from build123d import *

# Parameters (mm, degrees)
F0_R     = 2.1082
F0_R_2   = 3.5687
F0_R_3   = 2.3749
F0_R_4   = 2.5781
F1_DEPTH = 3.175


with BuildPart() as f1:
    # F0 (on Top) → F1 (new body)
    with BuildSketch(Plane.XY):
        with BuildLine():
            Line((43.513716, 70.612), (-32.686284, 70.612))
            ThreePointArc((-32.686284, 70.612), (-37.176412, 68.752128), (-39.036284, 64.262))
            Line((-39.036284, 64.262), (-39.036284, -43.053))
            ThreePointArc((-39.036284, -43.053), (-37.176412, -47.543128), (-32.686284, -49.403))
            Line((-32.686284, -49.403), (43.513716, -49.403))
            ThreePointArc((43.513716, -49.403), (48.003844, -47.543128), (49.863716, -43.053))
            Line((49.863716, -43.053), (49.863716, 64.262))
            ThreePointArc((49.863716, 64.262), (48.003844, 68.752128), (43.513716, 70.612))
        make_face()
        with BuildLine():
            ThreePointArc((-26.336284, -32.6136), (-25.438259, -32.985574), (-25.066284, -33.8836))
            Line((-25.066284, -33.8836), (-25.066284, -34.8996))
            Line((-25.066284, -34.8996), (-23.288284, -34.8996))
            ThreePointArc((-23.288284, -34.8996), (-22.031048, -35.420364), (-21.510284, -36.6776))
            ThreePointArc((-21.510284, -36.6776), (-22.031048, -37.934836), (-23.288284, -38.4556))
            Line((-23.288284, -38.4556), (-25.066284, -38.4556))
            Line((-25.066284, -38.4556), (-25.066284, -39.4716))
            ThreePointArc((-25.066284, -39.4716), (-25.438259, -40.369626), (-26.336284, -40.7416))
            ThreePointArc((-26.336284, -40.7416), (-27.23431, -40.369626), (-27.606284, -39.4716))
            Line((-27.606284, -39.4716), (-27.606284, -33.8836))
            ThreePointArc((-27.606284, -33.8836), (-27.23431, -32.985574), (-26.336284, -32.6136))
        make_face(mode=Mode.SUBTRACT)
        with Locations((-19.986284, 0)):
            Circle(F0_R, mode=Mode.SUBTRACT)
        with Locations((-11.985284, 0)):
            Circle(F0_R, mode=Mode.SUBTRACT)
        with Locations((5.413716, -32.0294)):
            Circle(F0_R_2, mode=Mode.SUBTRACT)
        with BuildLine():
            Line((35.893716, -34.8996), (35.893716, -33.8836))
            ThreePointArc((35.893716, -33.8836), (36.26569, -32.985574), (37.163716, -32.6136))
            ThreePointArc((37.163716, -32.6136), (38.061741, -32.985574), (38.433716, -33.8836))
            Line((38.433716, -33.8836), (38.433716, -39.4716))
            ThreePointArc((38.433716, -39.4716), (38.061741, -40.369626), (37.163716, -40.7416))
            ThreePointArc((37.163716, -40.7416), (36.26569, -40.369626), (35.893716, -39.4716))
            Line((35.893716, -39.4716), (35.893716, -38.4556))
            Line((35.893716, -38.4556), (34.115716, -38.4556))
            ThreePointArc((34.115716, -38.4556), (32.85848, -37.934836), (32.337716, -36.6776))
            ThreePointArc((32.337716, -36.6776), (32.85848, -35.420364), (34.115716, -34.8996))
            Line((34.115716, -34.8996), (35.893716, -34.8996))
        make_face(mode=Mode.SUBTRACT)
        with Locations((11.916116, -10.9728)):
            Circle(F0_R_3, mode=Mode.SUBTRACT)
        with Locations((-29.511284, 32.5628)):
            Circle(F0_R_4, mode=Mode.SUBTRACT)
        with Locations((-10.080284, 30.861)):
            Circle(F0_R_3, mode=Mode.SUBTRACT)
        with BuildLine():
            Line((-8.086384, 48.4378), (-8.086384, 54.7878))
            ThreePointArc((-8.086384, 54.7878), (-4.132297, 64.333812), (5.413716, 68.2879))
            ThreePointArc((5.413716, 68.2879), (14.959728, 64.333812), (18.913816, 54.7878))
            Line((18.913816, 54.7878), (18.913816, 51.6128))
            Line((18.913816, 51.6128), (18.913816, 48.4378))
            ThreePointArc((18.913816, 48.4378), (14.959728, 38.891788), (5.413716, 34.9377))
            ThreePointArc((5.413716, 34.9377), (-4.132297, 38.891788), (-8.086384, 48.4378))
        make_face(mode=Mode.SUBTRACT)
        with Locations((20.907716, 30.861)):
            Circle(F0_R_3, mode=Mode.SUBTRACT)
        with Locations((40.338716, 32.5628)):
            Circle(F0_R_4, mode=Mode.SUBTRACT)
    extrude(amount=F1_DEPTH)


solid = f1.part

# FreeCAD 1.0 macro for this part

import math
import FreeCAD as App
import Part
import Sketcher
from FreeCAD import Vector
Q = App.Units.Quantity

doc = App.newDocument("Part")
body = doc.addObject("PartDesign::Body", "Body")

# Sketch on XY plane
sketch1 = body.newObject("Sketcher::SketchObject", "Sketch")
sketch1.AttachmentSupport = (doc.getObject("XY_Plane"), [""])
sketch1.MapMode = "FlatFace"
sketch1.addGeometry([
    Part.LineSegment(Vector(43.5, 70.6, 0), Vector(-32.7, 70.6, 0)),  # 0
    Part.ArcOfCircle(Part.Circle(Vector(-32.7, 64.3, 0), Vector(0, 0, 1), 6.4), math.radians(90), math.radians(180)),  # 1
    Part.LineSegment(Vector(-39, 64.3, 0), Vector(-39, -43.1, 0)),  # 2
    Part.ArcOfCircle(Part.Circle(Vector(-32.7, -43.1, 0), Vector(0, 0, 1), 6.4), math.radians(-180), math.radians(-90)),  # 3
    Part.LineSegment(Vector(-32.7, -49.4, 0), Vector(43.5, -49.4, 0)),  # 4
    Part.ArcOfCircle(Part.Circle(Vector(43.5, -43.1, 0), Vector(0, 0, 1), 6.4), math.radians(-90), math.radians(0)),  # 5
    Part.LineSegment(Vector(49.9, -43.1, 0), Vector(49.9, 64.3, 0)),  # 6
    Part.ArcOfCircle(Part.Circle(Vector(43.5, 64.3, 0), Vector(0, 0, 1), 6.4), math.radians(0), math.radians(90)),  # 7
    Part.ArcOfCircle(Part.Circle(Vector(-26.3, -33.9, 0), Vector(0, 0, 1), 1.3), math.radians(90), math.radians(180)),  # 8
    Part.ArcOfCircle(Part.Circle(Vector(-26.3, -33.9, 0), Vector(0, 0, 1), 1.3), math.radians(0), math.radians(90)),  # 9
    Part.LineSegment(Vector(-25.1, -33.9, 0), Vector(-25.1, -34.9, 0)),  # 10
    Part.LineSegment(Vector(-25.1, -34.9, 0), Vector(-23.3, -34.9, 0)),  # 11
    Part.ArcOfCircle(Part.Circle(Vector(-23.3, -36.7, 0), Vector(0, 0, 1), 1.8), math.radians(0), math.radians(90)),  # 12
    Part.ArcOfCircle(Part.Circle(Vector(-23.3, -36.7, 0), Vector(0, 0, 1), 1.8), math.radians(-90), math.radians(0)),  # 13
    Part.LineSegment(Vector(-23.3, -38.5, 0), Vector(-25.1, -38.5, 0)),  # 14
    Part.LineSegment(Vector(-25.1, -38.5, 0), Vector(-25.1, -39.5, 0)),  # 15
    Part.ArcOfCircle(Part.Circle(Vector(-26.3, -39.5, 0), Vector(0, 0, 1), 1.3), math.radians(-90), math.radians(0)),  # 16
    Part.ArcOfCircle(Part.Circle(Vector(-26.3, -39.5, 0), Vector(0, 0, 1), 1.3), math.radians(180), math.radians(270)),  # 17
    Part.LineSegment(Vector(-27.6, -39.5, 0), Vector(-27.6, -33.9, 0)),  # 18
    Part.Circle(Vector(-20, 0, 0), Vector(0, 0, 1), 2.1),  # 19
    Part.Circle(Vector(-12, 0, 0), Vector(0, 0, 1), 2.1),  # 20
    Part.Circle(Vector(5.4, -32, 0), Vector(0, 0, 1), 3.6),  # 21
    Part.LineSegment(Vector(34.1, -34.9, 0), Vector(35.9, -34.9, 0)),  # 22
    Part.LineSegment(Vector(35.9, -34.9, 0), Vector(35.9, -33.9, 0)),  # 23
    Part.ArcOfCircle(Part.Circle(Vector(37.2, -33.9, 0), Vector(0, 0, 1), 1.3), math.radians(90), math.radians(180)),  # 24
    Part.ArcOfCircle(Part.Circle(Vector(37.2, -33.9, 0), Vector(0, 0, 1), 1.3), math.radians(0), math.radians(90)),  # 25
    Part.LineSegment(Vector(38.4, -33.9, 0), Vector(38.4, -39.5, 0)),  # 26
    Part.ArcOfCircle(Part.Circle(Vector(37.2, -39.5, 0), Vector(0, 0, 1), 1.3), math.radians(-90), math.radians(0)),  # 27
    Part.ArcOfCircle(Part.Circle(Vector(37.2, -39.5, 0), Vector(0, 0, 1), 1.3), math.radians(180), math.radians(270)),  # 28
    Part.LineSegment(Vector(35.9, -39.5, 0), Vector(35.9, -38.5, 0)),  # 29
    Part.LineSegment(Vector(35.9, -38.5, 0), Vector(34.1, -38.5, 0)),  # 30
    Part.ArcOfCircle(Part.Circle(Vector(34.1, -36.7, 0), Vector(0, 0, 1), 1.8), math.radians(180), math.radians(270)),  # 31
    Part.ArcOfCircle(Part.Circle(Vector(34.1, -36.7, 0), Vector(0, 0, 1), 1.8), math.radians(90), math.radians(180)),  # 32
    Part.Circle(Vector(11.9, -11, 0), Vector(0, 0, 1), 2.4),  # 33
    Part.Circle(Vector(-29.5, 32.6, 0), Vector(0, 0, 1), 2.6),  # 34
    Part.Circle(Vector(-10.1, 30.9, 0), Vector(0, 0, 1), 2.4),  # 35
    Part.ArcOfCircle(Part.Circle(Vector(5.4, 48.4, 0), Vector(0, 0, 1), 13.5), math.radians(180), math.radians(270)),  # 36
    Part.LineSegment(Vector(-8.1, 48.4, 0), Vector(-8.1, 54.8, 0)),  # 37
    Part.ArcOfCircle(Part.Circle(Vector(5.4, 54.8, 0), Vector(0, 0, 1), 13.5), math.radians(90), math.radians(180)),  # 38
    Part.ArcOfCircle(Part.Circle(Vector(5.4, 54.8, 0), Vector(0, 0, 1), 13.5), math.radians(0), math.radians(90)),  # 39
    Part.LineSegment(Vector(18.9, 54.8, 0), Vector(18.9, 48.4, 0)),  # 40
    Part.ArcOfCircle(Part.Circle(Vector(5.4, 48.4, 0), Vector(0, 0, 1), 13.5), math.radians(-90), math.radians(0)),  # 41
    Part.Circle(Vector(20.9, 30.9, 0), Vector(0, 0, 1), 2.4),  # 42
    Part.Circle(Vector(40.3, 32.6, 0), Vector(0, 0, 1), 2.6),  # 43
], False)
sketch1.addConstraint([
    Sketcher.Constraint("Tangent", 0, 2, 1, 1),
    Sketcher.Constraint("Tangent", 1, 2, 2, 1),
    Sketcher.Constraint("Tangent", 2, 2, 3, 1),
    Sketcher.Constraint("Tangent", 3, 2, 4, 1),
    Sketcher.Constraint("Tangent", 4, 2, 5, 1),
    Sketcher.Constraint("Tangent", 5, 2, 6, 1),
    Sketcher.Constraint("Tangent", 6, 2, 7, 1),
    Sketcher.Constraint("Tangent", 7, 2, 0, 1),
    Sketcher.Constraint("Tangent", 8, 1, 9, 2),
    Sketcher.Constraint("Tangent", 9, 1, 10, 1),
    Sketcher.Constraint("Coincident", 10, 2, 11, 1),
    Sketcher.Constraint("Tangent", 11, 2, 12, 2),
    Sketcher.Constraint("Tangent", 12, 1, 13, 2),
    Sketcher.Constraint("Tangent", 13, 1, 14, 1),
    Sketcher.Constraint("Coincident", 14, 2, 15, 1),
    Sketcher.Constraint("Tangent", 15, 2, 16, 2),
    Sketcher.Constraint("Tangent", 16, 1, 17, 2),
    Sketcher.Constraint("Tangent", 17, 1, 18, 1),
    Sketcher.Constraint("Tangent", 18, 2, 8, 2),
    Sketcher.Constraint("Coincident", 22, 2, 23, 1),
    Sketcher.Constraint("Tangent", 23, 2, 24, 2),
    Sketcher.Constraint("Tangent", 24, 1, 25, 2),
    Sketcher.Constraint("Tangent", 25, 1, 26, 1),
    Sketcher.Constraint("Tangent", 26, 2, 27, 2),
    Sketcher.Constraint("Tangent", 27, 1, 28, 2),
    Sketcher.Constraint("Tangent", 28, 1, 29, 1),
    Sketcher.Constraint("Coincident", 29, 2, 30, 1),
    Sketcher.Constraint("Tangent", 30, 2, 31, 2),
    Sketcher.Constraint("Tangent", 31, 1, 32, 2),
    Sketcher.Constraint("Tangent", 32, 1, 22, 1),
    Sketcher.Constraint("Tangent", 36, 1, 37, 1),
    Sketcher.Constraint("Tangent", 37, 2, 38, 2),
    Sketcher.Constraint("Tangent", 38, 1, 39, 2),
    Sketcher.Constraint("Tangent", 39, 1, 40, 1),
    Sketcher.Constraint("Tangent", 40, 2, 41, 2),
    Sketcher.Constraint("Tangent", 41, 1, 36, 2),
    Sketcher.Constraint("Horizontal", 0),
    Sketcher.Constraint("Vertical", 2),
    Sketcher.Constraint("Horizontal", 4),
    Sketcher.Constraint("Vertical", 6),
    Sketcher.Constraint("Vertical", 10),
    Sketcher.Constraint("Horizontal", 11),
    Sketcher.Constraint("Horizontal", 14),
    Sketcher.Constraint("Vertical", 15),
    Sketcher.Constraint("Vertical", 18),
    Sketcher.Constraint("Horizontal", 22),
    Sketcher.Constraint("Vertical", 23),
    Sketcher.Constraint("Vertical", 26),
    Sketcher.Constraint("Vertical", 29),
    Sketcher.Constraint("Horizontal", 30),
    Sketcher.Constraint("Vertical", 37),
    Sketcher.Constraint("Vertical", 40),
    Sketcher.Constraint("Equal", 1, 3),
    Sketcher.Constraint("Equal", 3, 5),
    Sketcher.Constraint("Equal", 5, 7),
    Sketcher.Constraint("Equal", 8, 9),
    Sketcher.Constraint("Equal", 12, 13),
    Sketcher.Constraint("Equal", 9, 16),
    Sketcher.Constraint("Equal", 16, 17),
    Sketcher.Constraint("Equal", 19, 20),
    Sketcher.Constraint("Equal", 17, 24),
    Sketcher.Constraint("Equal", 24, 25),
    Sketcher.Constraint("Equal", 25, 27),
    Sketcher.Constraint("Equal", 27, 28),
    Sketcher.Constraint("Equal", 13, 31),
    Sketcher.Constraint("Equal", 31, 32),
    Sketcher.Constraint("Equal", 33, 35),
    Sketcher.Constraint("Equal", 36, 38),
    Sketcher.Constraint("Equal", 38, 39),
    Sketcher.Constraint("Equal", 35, 42),
    Sketcher.Constraint("Equal", 34, 43),
    Sketcher.Constraint("PointOnObject", 19, 3, -1),
    Sketcher.Constraint("PointOnObject", 20, 3, -1),
    Sketcher.Constraint("Horizontal", 9, 3, 24, 3),
    Sketcher.Constraint("Horizontal", 17, 3, 27, 3),
    Sketcher.Constraint("Horizontal", 13, 3, 31, 3),
    Sketcher.Constraint("Horizontal", 35, 3, 42, 3),
    Sketcher.Constraint("Horizontal", 34, 3, 43, 3),
    Sketcher.Constraint("Horizontal", 32, 3, 12, 1),
    Sketcher.Constraint("Horizontal", 12, 1, 31, 1),
    Sketcher.Constraint("Vertical", 21, 3, 36, 3),
    Sketcher.Constraint("Vertical", 17, 3, 8, 1),
    Sketcher.Constraint("Vertical", 8, 1, 16, 1),
    Sketcher.Constraint("Vertical", 28, 3, 24, 1),
    Sketcher.Constraint("Vertical", 24, 1, 27, 1),
    Sketcher.Constraint("Vertical", 41, 3, 38, 1),
    Sketcher.Constraint("Vertical", 38, 1, 41, 1),
    Sketcher.Constraint("Equal", 14, 22),
    Sketcher.Constraint("Equal", 10, 15),
    Sketcher.Constraint("DistanceX", 0, 2, 0, 1, Q("3 in")),
    Sketcher.Constraint("Radius", 1, Q("0.25 in")),
    Sketcher.Constraint("Radius", 8, Q("0.0499999 in")),
    Sketcher.Constraint("Radius", 12, Q("0.07 in")),
    Sketcher.Constraint("Diameter", 19, Q("0.166 in")),
    Sketcher.Constraint("Diameter", 21, Q("0.281 in")),
    Sketcher.Constraint("Diameter", 33, Q("0.187 in")),
    Sketcher.Constraint("Diameter", 34, Q("0.203 in")),
    Sketcher.Constraint("DistanceX", 11, 1, 11, 2, Q("0.07 in")),
    Sketcher.Constraint("DistanceY", 10, 2, 10, 1, Q("0.04 in")),
    Sketcher.Constraint("DistanceY", 37, 1, 37, 2, Q("0.25 in")),
    Sketcher.Constraint("Radius", 36, Q("0.5315 in")),
    Sketcher.Constraint("DistanceY", 2, 2, 2, 1, Q("4.225 in")),
    Sketcher.Constraint("DistanceY", -1, 1, 1, 3, Q("2.53 in")),
    Sketcher.Constraint("DistanceY", 8, 3, -1, 1, Q("1.3339999 in")),
    Sketcher.Constraint("DistanceY", 21, 3, -1, 1, Q("1.261 in")),
    Sketcher.Constraint("DistanceY", 33, 3, -1, 1, Q("0.432 in")),
    Sketcher.Constraint("DistanceY", -1, 1, 34, 3, Q("1.282 in")),
    Sketcher.Constraint("DistanceY", -1, 1, 35, 3, Q("1.215 in")),
    Sketcher.Constraint("DistanceY", -1, 1, 36, 3, Q("1.907 in")),
    Sketcher.Constraint("DistanceX", 1, 3, -1, 1, Q("32.686284 mm")),
    Sketcher.Constraint("DistanceX", 8, 3, -1, 1, Q("26.336285 mm")),
    Sketcher.Constraint("DistanceX", 19, 3, -1, 1, Q("19.986284 mm")),
    Sketcher.Constraint("DistanceX", 20, 3, -1, 1, Q("11.985284 mm")),
    Sketcher.Constraint("DistanceX", -1, 1, 21, 3, Q("5.413716 mm")),
    Sketcher.Constraint("DistanceX", -1, 1, 24, 3, Q("37.163715 mm")),
    Sketcher.Constraint("DistanceX", -1, 1, 33, 3, Q("11.916116 mm")),
    Sketcher.Constraint("DistanceX", 34, 3, -1, 1, Q("29.511284 mm")),
    Sketcher.Constraint("DistanceX", 35, 3, -1, 1, Q("10.080284 mm")),
    Sketcher.Constraint("DistanceX", -1, 1, 42, 3, Q("20.907716 mm")),
    Sketcher.Constraint("DistanceX", -1, 1, 43, 3, Q("40.338716 mm")),
])
pad1 = body.newObject("PartDesign::Pad", "Pad")
pad1.Profile = sketch1
pad1.Length = Q("0.125 in")

doc.recompute()
